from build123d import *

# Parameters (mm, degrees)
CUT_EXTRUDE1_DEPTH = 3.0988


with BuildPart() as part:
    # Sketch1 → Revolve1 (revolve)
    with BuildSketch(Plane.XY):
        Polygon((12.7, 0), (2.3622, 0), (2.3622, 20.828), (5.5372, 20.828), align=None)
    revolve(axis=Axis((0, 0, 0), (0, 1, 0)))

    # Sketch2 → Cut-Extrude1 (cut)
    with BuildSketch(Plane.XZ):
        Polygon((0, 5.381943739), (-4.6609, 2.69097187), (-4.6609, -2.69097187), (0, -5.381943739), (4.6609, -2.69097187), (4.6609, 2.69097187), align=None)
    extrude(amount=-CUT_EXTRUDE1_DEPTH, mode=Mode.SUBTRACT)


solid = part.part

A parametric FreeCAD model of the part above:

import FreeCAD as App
import Part
import Sketcher

V = App.Vector
Q = App.Units.Quantity


def add_polygon(sketch, points):
    """Adds a closed chain of lines whose ends are joined by coincident constraints."""
    first, n = sketch.GeometryCount, len(points)
    for a, b in zip(points, points[1:] + points[:1]):
        sketch.addGeometry(Part.LineSegment(App.Vector(*a, 0), App.Vector(*b, 0)), False)
    for i in range(n):
        sketch.addConstraint(Sketcher.Constraint("Coincident", first + i, 2, first + (i + 1) % n, 1))

doc = App.newDocument("Part")
body = doc.addObject("PartDesign::Body", "Body")

# Sketch on XY plane
sketch1 = body.newObject("Sketcher::SketchObject", "Sketch")
sketch1.AttachmentSupport = (doc.getObject("XY_Plane"), [""])
sketch1.MapMode = "FlatFace"
add_polygon(sketch1, [(2.4, 0), (12.7, 0), (5.5, 20.8), (2.4, 20.8)])  # lines 0-3
sketch1.addConstraint(Sketcher.Constraint("Horizontal", 0))
sketch1.addConstraint(Sketcher.Constraint("Horizontal", 2))
sketch1.addConstraint(Sketcher.Constraint("Vertical", 3))
sketch1.addConstraint(Sketcher.Constraint("PointOnObject", 0, 2, -1))
sketch1.addConstraint(Sketcher.Constraint("DistanceY", 3, 2, 3, 1, Q("0.82 in")))
sketch1.addConstraint(Sketcher.Constraint("DistanceX", -1, 1, 0, 2, Q("0.5 in")))
sketch1.addConstraint(Sketcher.Constraint("DistanceX", 0, 1, 0, 2, Q("0.407 in")))
sketch1.addConstraint(Sketcher.Constraint("DistanceX", 2, 2, 2, 1, Q("0.125 in")))
revolution = body.newObject("PartDesign::Revolution", "Revolution")
revolution.Profile = sketch1
revolution.ReferenceAxis = (sketch1, ["V_Axis"])
revolution.Angle = 360

# Sketch on XZ plane
sketch2 = body.newObject("Sketcher::SketchObject", "Sketch001")
sketch2.AttachmentSupport = (doc.getObject("XZ_Plane"), [""])
sketch2.MapMode = "FlatFace"
add_polygon(sketch2, [(0, 5), (-5, 3), (-5, -3), (0, -5), (5, -3), (5, 3)])  # lines 0-5
sketch2.addConstraint(Sketcher.Constraint("Vertical", 1))
sketch2.addConstraint(Sketcher.Constraint("Vertical", 4))
sketch2.addConstraint(Sketcher.Constraint("Symmetric", 0, 2, 3, 2, -1, 1))
sketch2.addConstraint(Sketcher.Constraint("Symmetric", 2, 2, 5, 2, -1, 1))
sketch2.addConstraint(Sketcher.Constraint("PointOnObject", 2, 2, -2))
sketch2.addConstraint(Sketcher.Constraint("Parallel", 2, 5))
sketch2.addConstraint(Sketcher.Constraint("Horizontal", 1, 2, 3, 2))
sketch2.addConstraint(Sketcher.Constraint("Angle", 0, Q("-150 deg")))
sketch2.addConstraint(Sketcher.Constraint("DistanceX", 1, 2, 3, 2, Q("0.367 in")))
sketch2.addConstraint(Sketcher.Constraint("DistanceY", 1, 2, 1, 1, 5.381944))
pocket1 = body.newObject("PartDesign::Pocket", "Pocket")
pocket1.Profile = sketch2
pocket1.Length = Q("0.122 in")

doc.recompute()
